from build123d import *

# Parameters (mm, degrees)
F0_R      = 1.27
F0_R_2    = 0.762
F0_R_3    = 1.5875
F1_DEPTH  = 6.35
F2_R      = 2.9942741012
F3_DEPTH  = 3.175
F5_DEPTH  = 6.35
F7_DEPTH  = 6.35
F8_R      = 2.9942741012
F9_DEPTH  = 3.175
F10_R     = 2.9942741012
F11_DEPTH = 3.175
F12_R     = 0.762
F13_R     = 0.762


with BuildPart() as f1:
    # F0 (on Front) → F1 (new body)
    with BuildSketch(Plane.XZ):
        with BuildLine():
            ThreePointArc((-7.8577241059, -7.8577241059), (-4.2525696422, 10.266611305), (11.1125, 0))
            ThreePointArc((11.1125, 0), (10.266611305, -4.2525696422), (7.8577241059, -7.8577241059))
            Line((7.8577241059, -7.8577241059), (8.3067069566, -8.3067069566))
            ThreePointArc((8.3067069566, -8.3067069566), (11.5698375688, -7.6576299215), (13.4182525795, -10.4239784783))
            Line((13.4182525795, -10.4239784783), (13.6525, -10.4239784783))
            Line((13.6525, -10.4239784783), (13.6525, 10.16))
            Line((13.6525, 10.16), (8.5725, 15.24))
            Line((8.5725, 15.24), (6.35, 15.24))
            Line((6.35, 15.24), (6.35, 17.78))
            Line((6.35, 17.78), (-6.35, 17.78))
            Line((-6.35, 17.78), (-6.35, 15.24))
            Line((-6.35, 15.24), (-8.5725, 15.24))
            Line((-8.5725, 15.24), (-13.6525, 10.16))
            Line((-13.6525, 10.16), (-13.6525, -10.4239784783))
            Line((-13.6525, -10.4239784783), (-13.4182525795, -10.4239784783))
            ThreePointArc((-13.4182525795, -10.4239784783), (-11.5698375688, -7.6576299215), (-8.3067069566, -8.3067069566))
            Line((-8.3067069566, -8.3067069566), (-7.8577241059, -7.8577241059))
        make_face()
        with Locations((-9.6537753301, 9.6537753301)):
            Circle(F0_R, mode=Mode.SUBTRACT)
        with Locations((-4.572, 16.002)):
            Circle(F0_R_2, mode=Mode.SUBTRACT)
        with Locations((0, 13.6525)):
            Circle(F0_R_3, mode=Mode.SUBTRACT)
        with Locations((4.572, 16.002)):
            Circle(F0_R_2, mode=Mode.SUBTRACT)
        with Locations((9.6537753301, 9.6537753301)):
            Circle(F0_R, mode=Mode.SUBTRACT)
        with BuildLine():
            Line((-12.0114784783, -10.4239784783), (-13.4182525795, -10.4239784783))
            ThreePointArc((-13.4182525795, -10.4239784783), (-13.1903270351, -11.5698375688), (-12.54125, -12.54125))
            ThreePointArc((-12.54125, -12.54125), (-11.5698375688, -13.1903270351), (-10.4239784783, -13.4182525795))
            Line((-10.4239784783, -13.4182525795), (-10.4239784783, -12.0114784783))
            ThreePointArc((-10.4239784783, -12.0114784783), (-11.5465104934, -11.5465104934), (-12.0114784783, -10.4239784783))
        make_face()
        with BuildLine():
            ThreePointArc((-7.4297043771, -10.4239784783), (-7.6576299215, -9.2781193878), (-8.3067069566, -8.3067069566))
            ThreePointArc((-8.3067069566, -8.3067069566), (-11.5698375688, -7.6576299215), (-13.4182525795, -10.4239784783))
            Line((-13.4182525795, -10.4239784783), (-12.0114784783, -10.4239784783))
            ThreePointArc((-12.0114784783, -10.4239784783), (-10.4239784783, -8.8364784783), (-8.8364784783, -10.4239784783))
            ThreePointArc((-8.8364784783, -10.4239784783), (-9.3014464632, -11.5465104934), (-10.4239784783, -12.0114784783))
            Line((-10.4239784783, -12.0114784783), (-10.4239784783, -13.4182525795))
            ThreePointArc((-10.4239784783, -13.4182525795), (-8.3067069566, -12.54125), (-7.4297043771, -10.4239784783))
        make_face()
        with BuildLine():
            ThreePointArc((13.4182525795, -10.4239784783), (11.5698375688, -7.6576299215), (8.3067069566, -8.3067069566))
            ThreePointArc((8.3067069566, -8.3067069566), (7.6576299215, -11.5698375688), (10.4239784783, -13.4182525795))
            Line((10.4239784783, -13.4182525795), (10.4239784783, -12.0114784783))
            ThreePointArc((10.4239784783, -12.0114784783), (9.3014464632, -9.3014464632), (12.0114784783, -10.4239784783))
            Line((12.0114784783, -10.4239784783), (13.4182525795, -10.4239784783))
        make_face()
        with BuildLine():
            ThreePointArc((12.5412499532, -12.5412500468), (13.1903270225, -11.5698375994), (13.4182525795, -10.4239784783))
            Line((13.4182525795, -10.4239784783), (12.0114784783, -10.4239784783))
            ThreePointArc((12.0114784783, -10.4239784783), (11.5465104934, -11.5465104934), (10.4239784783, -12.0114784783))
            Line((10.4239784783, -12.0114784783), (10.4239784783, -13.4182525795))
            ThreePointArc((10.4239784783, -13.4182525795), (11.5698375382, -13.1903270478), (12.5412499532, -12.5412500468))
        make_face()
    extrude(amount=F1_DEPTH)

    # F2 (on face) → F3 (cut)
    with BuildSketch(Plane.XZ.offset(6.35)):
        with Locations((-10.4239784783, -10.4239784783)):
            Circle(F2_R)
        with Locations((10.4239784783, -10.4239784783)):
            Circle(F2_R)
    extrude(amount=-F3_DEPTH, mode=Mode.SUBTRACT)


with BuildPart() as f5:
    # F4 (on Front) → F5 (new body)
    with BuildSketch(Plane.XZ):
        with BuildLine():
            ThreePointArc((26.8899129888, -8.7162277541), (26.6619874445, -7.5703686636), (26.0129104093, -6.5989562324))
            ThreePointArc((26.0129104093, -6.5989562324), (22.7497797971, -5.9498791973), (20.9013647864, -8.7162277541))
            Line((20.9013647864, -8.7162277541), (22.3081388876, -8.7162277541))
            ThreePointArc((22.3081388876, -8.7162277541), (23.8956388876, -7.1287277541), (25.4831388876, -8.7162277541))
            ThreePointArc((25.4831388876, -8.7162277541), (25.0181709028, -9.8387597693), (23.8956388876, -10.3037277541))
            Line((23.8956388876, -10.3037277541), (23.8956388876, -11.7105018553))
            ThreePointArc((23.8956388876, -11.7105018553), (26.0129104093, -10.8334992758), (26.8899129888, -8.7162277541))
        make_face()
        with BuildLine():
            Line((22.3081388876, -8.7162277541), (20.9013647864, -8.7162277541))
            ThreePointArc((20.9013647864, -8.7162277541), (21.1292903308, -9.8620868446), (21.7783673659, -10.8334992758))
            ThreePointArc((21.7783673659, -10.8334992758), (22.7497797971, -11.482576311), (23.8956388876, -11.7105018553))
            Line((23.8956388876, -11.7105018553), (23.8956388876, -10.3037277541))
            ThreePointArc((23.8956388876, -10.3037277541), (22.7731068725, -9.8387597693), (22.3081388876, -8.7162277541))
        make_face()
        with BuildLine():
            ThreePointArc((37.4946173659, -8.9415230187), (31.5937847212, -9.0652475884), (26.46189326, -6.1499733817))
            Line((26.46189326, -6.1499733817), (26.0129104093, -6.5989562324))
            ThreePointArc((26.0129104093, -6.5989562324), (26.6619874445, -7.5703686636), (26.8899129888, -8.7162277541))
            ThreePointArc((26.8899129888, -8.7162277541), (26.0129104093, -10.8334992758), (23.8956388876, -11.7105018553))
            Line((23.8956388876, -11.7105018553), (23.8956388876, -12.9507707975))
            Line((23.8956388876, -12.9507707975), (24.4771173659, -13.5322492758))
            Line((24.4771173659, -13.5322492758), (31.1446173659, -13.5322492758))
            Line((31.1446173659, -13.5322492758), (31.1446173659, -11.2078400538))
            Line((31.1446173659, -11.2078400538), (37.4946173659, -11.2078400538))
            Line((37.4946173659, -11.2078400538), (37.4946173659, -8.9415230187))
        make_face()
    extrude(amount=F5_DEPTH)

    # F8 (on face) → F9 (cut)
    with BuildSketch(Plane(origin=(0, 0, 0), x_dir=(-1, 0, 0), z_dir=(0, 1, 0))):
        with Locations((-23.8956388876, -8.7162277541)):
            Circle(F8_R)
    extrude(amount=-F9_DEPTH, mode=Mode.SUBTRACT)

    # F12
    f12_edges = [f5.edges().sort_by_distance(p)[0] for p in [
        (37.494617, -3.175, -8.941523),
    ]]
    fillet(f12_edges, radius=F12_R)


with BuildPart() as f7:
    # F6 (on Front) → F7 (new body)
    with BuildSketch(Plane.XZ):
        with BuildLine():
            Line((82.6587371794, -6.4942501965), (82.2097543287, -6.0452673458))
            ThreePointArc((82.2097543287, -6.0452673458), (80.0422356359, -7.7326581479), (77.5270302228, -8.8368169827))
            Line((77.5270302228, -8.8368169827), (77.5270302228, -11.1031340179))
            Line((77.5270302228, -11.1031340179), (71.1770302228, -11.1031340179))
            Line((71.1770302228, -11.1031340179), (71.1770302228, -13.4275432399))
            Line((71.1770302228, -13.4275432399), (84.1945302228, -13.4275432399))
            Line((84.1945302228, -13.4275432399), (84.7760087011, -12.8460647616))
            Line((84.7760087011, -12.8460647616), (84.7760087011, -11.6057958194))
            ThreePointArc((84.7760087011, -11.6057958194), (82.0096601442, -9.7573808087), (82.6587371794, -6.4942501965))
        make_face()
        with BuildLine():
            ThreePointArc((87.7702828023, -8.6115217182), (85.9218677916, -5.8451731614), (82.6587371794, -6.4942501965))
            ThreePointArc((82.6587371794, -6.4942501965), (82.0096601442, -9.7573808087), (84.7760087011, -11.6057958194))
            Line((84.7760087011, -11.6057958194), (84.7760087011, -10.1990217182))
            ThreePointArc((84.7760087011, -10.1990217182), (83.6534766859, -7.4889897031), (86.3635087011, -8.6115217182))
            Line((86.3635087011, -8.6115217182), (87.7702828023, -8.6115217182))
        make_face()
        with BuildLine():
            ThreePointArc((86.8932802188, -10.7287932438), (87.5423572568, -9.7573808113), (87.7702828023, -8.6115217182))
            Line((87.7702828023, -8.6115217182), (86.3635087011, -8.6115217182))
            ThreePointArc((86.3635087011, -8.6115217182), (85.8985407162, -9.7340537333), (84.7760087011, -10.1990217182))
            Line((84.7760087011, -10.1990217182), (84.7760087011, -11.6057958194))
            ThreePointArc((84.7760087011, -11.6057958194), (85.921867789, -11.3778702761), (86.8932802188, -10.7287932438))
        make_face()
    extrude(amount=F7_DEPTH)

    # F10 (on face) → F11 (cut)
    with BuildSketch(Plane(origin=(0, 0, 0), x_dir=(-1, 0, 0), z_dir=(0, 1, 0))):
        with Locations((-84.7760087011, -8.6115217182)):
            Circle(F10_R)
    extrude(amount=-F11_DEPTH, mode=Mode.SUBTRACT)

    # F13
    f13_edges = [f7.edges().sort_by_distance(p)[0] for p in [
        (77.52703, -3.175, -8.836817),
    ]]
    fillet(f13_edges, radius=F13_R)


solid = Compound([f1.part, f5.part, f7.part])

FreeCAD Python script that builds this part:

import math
import FreeCAD as App
import Part
import Sketcher

V = App.Vector
Q = App.Units.Quantity


def edges_at(feature, points):
    """Names of the edges that pass closest to the given points."""
    edges = feature.Shape.Edges
    near = lambda p: min(range(len(edges)), key=lambda i: edges[i].distToShape(Part.Vertex(*p))[0])
    return sorted({f"Edge{near(p) + 1}" for p in points})

doc = App.newDocument("Part")
body = doc.addObject("PartDesign::Body", "Body")

sketch1 = doc.addObject("Sketcher::SketchObject", "Sketch")
body.addObject(sketch1)
sketch1.AttachmentSupport = (doc.XZ_Plane, [""])
sketch1.MapMode = "FlatFace"
sketch1.addGeometry([
    Part.LineSegment(V(-13.6525, -10.423978, 0), V(-13.418253, -10.423978, 0)),
    Part.ArcOfCircle(Part.Circle(V(-10.423978, -10.423978, 0), V(0, 0, 1), 2.994274), math.radians(180), math.radians(225)),
    Part.ArcOfCircle(Part.Circle(V(-10.423978, -10.423978, 0), V(0, 0, 1), 2.994274), math.radians(-135), math.radians(-90)),
    Part.ArcOfCircle(Part.Circle(V(-10.423978, -10.423978, 0), V(0, 0, 1), 2.994274), math.radians(-90), math.radians(0)),
    Part.ArcOfCircle(Part.Circle(V(-10.423978, -10.423978, 0), V(0, 0, 1), 2.994274), math.radians(0), math.radians(45)),
    Part.LineSegment(V(-8.306707, -8.306707, 0), V(-7.857724, -7.857724, 0)),
    Part.ArcOfCircle(Part.Circle(V(0, 0, 0), V(0, 0, 1), 11.1125), math.radians(0), math.radians(225)),
    Part.ArcOfCircle(Part.Circle(V(0, 0, 0), V(0, 0, 1), 11.1125), math.radians(-45), math.radians(0)),
    Part.LineSegment(V(7.857724, -7.857724, 0), V(8.306707, -8.306707, 0)),
    Part.ArcOfCircle(Part.Circle(V(10.423978, -10.423978, 0), V(0, 0, 1), 2.994274), math.radians(135), math.radians(270)),
    Part.ArcOfCircle(Part.Circle(V(10.423978, -10.423978, 0), V(0, 0, 1), 2.994274), math.radians(-90), math.radians(-45.000001)),
    Part.ArcOfCircle(Part.Circle(V(10.423978, -10.423978, 0), V(0, 0, 1), 2.994274), math.radians(-45.000001), math.radians(0)),
    Part.LineSegment(V(13.418253, -10.423978, 0), V(13.6525, -10.423978, 0)),
    Part.LineSegment(V(13.6525, -10.423978, 0), V(13.6525, 10.16, 0)),
    Part.LineSegment(V(13.6525, 10.16, 0), V(8.5725, 15.24, 0)),
    Part.LineSegment(V(8.5725, 15.24, 0), V(6.35, 15.24, 0)),
    Part.LineSegment(V(6.35, 15.24, 0), V(6.35, 17.78, 0)),
    Part.LineSegment(V(6.35, 17.78, 0), V(-6.35, 17.78, 0)),
    Part.LineSegment(V(-6.35, 17.78, 0), V(-6.35, 15.24, 0)),
    Part.LineSegment(V(-6.35, 15.24, 0), V(-8.5725, 15.24, 0)),
    Part.LineSegment(V(-8.5725, 15.24, 0), V(-13.6525, 10.16, 0)),
    Part.LineSegment(V(-13.6525, 10.16, 0), V(-13.6525, -10.423978, 0)),
    Part.ArcOfCircle(Part.Circle(V(-10.423978, -10.423978, 0), V(0, 0, 1), 1.5875), math.radians(180), math.radians(270)),
    Part.ArcOfCircle(Part.Circle(V(-10.423978, -10.423978, 0), V(0, 0, 1), 1.5875), math.radians(0), math.radians(180)),
    Part.ArcOfCircle(Part.Circle(V(-10.423978, -10.423978, 0), V(0, 0, 1), 1.5875), math.radians(-90), math.radians(0)),
    Part.ArcOfCircle(Part.Circle(V(10.423978, -10.423978, 0), V(0, 0, 1), 1.5875), math.radians(0), math.radians(270)),
    Part.ArcOfCircle(Part.Circle(V(10.423978, -10.423978, 0), V(0, 0, 1), 1.5875), math.radians(-90), math.radians(0)),
    Part.Circle(V(-9.653775, 9.653775, 0), V(0, 0, 1), 1.27),
    Part.Circle(V(-4.572, 16.002, 0), V(0, 0, 1), 0.762),
    Part.Circle(V(0, 13.6525, 0), V(0, 0, 1), 1.5875),
    Part.Circle(V(4.572, 16.002, 0), V(0, 0, 1), 0.762),
    Part.Circle(V(9.653775, 9.653775, 0), V(0, 0, 1), 1.27),
], False)
sketch1.addConstraint([
    Sketcher.Constraint("Coincident", 0, 2, 1, 1),
    Sketcher.Constraint("Tangent", 1, 2, 2, 1),
    Sketcher.Constraint("Tangent", 2, 2, 3, 1),
    Sketcher.Constraint("Tangent", 3, 2, 4, 1),
    Sketcher.Constraint("Coincident", 4, 2, 5, 1),
    Sketcher.Constraint("Coincident", 5, 2, 6, 2),
    Sketcher.Constraint("Tangent", 6, 1, 7, 2),
    Sketcher.Constraint("Coincident", 7, 1, 8, 1),
    Sketcher.Constraint("Coincident", 8, 2, 9, 1),
    Sketcher.Constraint("Tangent", 9, 2, 10, 1),
    Sketcher.Constraint("Tangent", 10, 2, 11, 1),
    Sketcher.Constraint("Coincident", 11, 2, 12, 1),
    Sketcher.Constraint("Coincident", 12, 2, 13, 1),
    Sketcher.Constraint("Coincident", 13, 2, 14, 1),
    Sketcher.Constraint("Coincident", 14, 2, 15, 1),
    Sketcher.Constraint("Coincident", 15, 2, 16, 1),
    Sketcher.Constraint("Coincident", 16, 2, 17, 1),
    Sketcher.Constraint("Coincident", 17, 2, 18, 1),
    Sketcher.Constraint("Coincident", 18, 2, 19, 1),
    Sketcher.Constraint("Coincident", 19, 2, 20, 1),
    Sketcher.Constraint("Coincident", 20, 2, 21, 1),
    Sketcher.Constraint("Coincident", 21, 2, 0, 1),
    Sketcher.Constraint("Tangent", 22, 1, 23, 2),
    Sketcher.Constraint("Tangent", 23, 1, 24, 2),
    Sketcher.Constraint("Tangent", 24, 1, 22, 2),
    Sketcher.Constraint("Tangent", 25, 1, 26, 2),
    Sketcher.Constraint("Coincident", 26, 1, 25, 2),
    Sketcher.Constraint("Horizontal", 0),
    Sketcher.Constraint("Horizontal", 12),
    Sketcher.Constraint("Vertical", 13),
    Sketcher.Constraint("Horizontal", 15),
    Sketcher.Constraint("Vertical", 16),
    Sketcher.Constraint("Horizontal", 17),
    Sketcher.Constraint("Vertical", 18),
    Sketcher.Constraint("Horizontal", 19),
    Sketcher.Constraint("Vertical", 21),
    Sketcher.Constraint("Coincident", 6, 3, -1, 1),
    Sketcher.Constraint("Coincident", 3, 3, 1, 3),
    Sketcher.Constraint("Coincident", 11, 3, 9, 3),
    Sketcher.Constraint("Coincident", 22, 3, 1, 3),
    Sketcher.Constraint("Coincident", 25, 3, 9, 3),
    Sketcher.Constraint("Equal", 3, 4),
    Sketcher.Constraint("Equal", 6, 7),
    Sketcher.Constraint("Equal", 4, 9),
    Sketcher.Constraint("Equal", 24, 25),
    Sketcher.Constraint("Equal", 26, 29),
    Sketcher.Constraint("Equal", 28, 30),
    Sketcher.Constraint("Equal", 27, 31),
    Sketcher.Constraint("Symmetric", 1, 3, 9, 3, -2),
    Sketcher.Constraint("Symmetric", 28, 3, 30, 3, -2),
    Sketcher.Constraint("Symmetric", 27, 3, 31, 3, -2),
    Sketcher.Constraint("Symmetric", 15, 2, 18, 2, -2),
    Sketcher.Constraint("Symmetric", 13, 2, 20, 2, -2),
    Sketcher.Constraint("PointOnObject", 29, 3, -2),
    Sketcher.Constraint("PointOnObject", 6, 1, -1),
    Sketcher.Constraint("Perpendicular", 5, 8),
    Sketcher.Constraint("Parallel", 8, 14),
    Sketcher.Constraint("Perpendicular", 14, 20),
    Sketcher.Constraint("Horizontal", 26, 3, 0, 2),
    Sketcher.Constraint("Horizontal", 0, 2, 3, 2),
    Sketcher.Constraint("Horizontal", 5, 2, 7, 1),
    Sketcher.Constraint("Horizontal", 4, 2, 8, 2),
    Sketcher.Constraint("Horizontal", 1, 2, 10, 2),
    Sketcher.Constraint("Horizontal", 3, 2, 11, 2),
    Sketcher.Constraint("Horizontal", 21, 2, 22, 1),
    Sketcher.Constraint("Horizontal", 22, 1, 23, 1),
    Sketcher.Constraint("Horizontal", 23, 1, 25, 1),
    Sketcher.Constraint("Vertical", 24, 3, 2, 2),
    Sketcher.Constraint("Vertical", 26, 3, 9, 2),
    Sketcher.Constraint("Vertical", 2, 2, 24, 1),
    Sketcher.Constraint("Vertical", 9, 2, 26, 1),
    Sketcher.Constraint("Diameter", 27, Q("0.1 in")),
    Sketcher.Constraint("Diameter", 28, Q("0.06 in")),
    Sketcher.Constraint("Diameter", 29, Q("0.125 in")),
    Sketcher.Constraint("DistanceX", 17, 2, 17, 1, Q("0.5 in")),
    Sketcher.Constraint("DistanceY", 16, 1, 16, 2, Q("0.1 in")),
    Sketcher.Constraint("Radius", 6, Q("0.4375 in")),
    Sketcher.Constraint("DistanceY", -1, 1, 13, 2, Q("0.4 in")),
    Sketcher.Constraint("DistanceY", -1, 1, 14, 2, Q("0.6 in")),
    Sketcher.Constraint("DistanceX", 6, 1, 13, 2, Q("0.1 in")),
    Sketcher.Constraint("DistanceX", 28, 3, -1, 1, Q("0.18 in")),
    Sketcher.Constraint("DistanceY", -1, 1, 28, 3, Q("0.63 in")),
    Sketcher.Constraint("DistanceY", 29, 3, 14, 2, Q("0.0625 in")),
    Sketcher.Constraint("Radius", 1, 2.994274),
    Sketcher.Constraint("DistanceY", 13, 1, 13, 2, 20.583978),
    Sketcher.Constraint("DistanceX", 0, 1, 0, 2, 0.234247),
    Sketcher.Constraint("DistanceX", 1, 2, -1, 1, 12.54125),
    Sketcher.Constraint("DistanceY", 3, 2, 4, 2, 2.117272),
    Sketcher.Constraint("DistanceX", 27, 3, -1, 1, 9.653775),
    Sketcher.Constraint("DistanceY", -1, 1, 27, 3, 9.653775),
])
pad1 = doc.addObject("PartDesign::Pad", "Pad")
body.addObject(pad1)
pad1.Profile = sketch1
pad1.Length = Q("0.25 in")

sketch2 = doc.addObject("Sketcher::SketchObject", "Sketch001")
body.addObject(sketch2)
sketch2.AttachmentSupport = (doc.XZ_Plane, [""])
sketch2.MapMode = "FlatFace"
sketch2.AttachmentOffset = App.Placement(V(0, 0, 0.25 * 25.4), App.Rotation())
sketch2.addGeometry([
    Part.Circle(V(-10.423978, -10.423978, 0), V(0, 0, 1), 2.994274),
    Part.Circle(V(10.423978, -10.423978, 0), V(0, 0, 1), 2.994274),
], False)
sketch2.addConstraint([
    Sketcher.Constraint("Equal", 0, 1),
    Sketcher.Constraint("Symmetric", 0, 3, 1, 3, -2),
    Sketcher.Constraint("Diameter", 0, 5.988548),
    Sketcher.Constraint("DistanceX", 0, 3, -1, 1, 10.423978),
    Sketcher.Constraint("DistanceY", 0, 3, -1, 1, 10.423978),
])
pocket1 = doc.addObject("PartDesign::Pocket", "Pocket")
body.addObject(pocket1)
pocket1.Profile = sketch2
pocket1.Length = Q("0.125 in")
body2 = doc.addObject("PartDesign::Body", "Body001")

sketch3 = doc.addObject("Sketcher::SketchObject", "Sketch002")
body2.addObject(sketch3)
sketch3.AttachmentSupport = (doc.getObject("XZ_Plane001"), [""])
sketch3.MapMode = "FlatFace"
sketch3.addGeometry([
    Part.ArcOfCircle(Part.Circle(V(23.895639, -8.716228, 0), V(0, 0, 1), 2.994274), math.radians(45), math.radians(180)),
    Part.ArcOfCircle(Part.Circle(V(23.895639, -8.716228, 0), V(0, 0, 1), 2.994274), math.radians(180), math.radians(225)),
    Part.ArcOfCircle(Part.Circle(V(23.895639, -8.716228, 0), V(0, 0, 1), 2.994274), math.radians(-135), math.radians(-90)),
    Part.LineSegment(V(23.895639, -11.710502, 0), V(23.895639, -12.950771, 0)),
    Part.LineSegment(V(23.895639, -12.950771, 0), V(24.477117, -13.532249, 0)),
    Part.LineSegment(V(24.477117, -13.532249, 0), V(31.144617, -13.532249, 0)),
    Part.LineSegment(V(31.144617, -13.532249, 0), V(31.144617, -11.20784, 0)),
    Part.LineSegment(V(31.144617, -11.20784, 0), V(37.494617, -11.20784, 0)),
    Part.LineSegment(V(37.494617, -11.20784, 0), V(37.494617, -8.941523, 0)),
    Part.ArcOfCircle(Part.Circle(V(34.319617, 1.707751, 0), V(0, 0, 1), 11.1125), math.radians(-135), math.radians(-73.39845)),
    Part.LineSegment(V(26.461893, -6.149973, 0), V(26.01291, -6.598956, 0)),
    Part.ArcOfCircle(Part.Circle(V(23.895639, -8.716228, 0), V(0, 0, 1), 1.5875), math.radians(0), math.radians(180)),
    Part.ArcOfCircle(Part.Circle(V(23.895639, -8.716228, 0), V(0, 0, 1), 1.5875), math.radians(-90), math.radians(0)),
    Part.ArcOfCircle(Part.Circle(V(23.895639, -8.716228, 0), V(0, 0, 1), 1.5875), math.radians(180), math.radians(270)),
], False)
sketch3.addConstraint([
    Sketcher.Constraint("Tangent", 0, 2, 1, 1),
    Sketcher.Constraint("Tangent", 1, 2, 2, 1),
    Sketcher.Constraint("Coincident", 2, 2, 3, 1),
    Sketcher.Constraint("Coincident", 3, 2, 4, 1),
    Sketcher.Constraint("Coincident", 4, 2, 5, 1),
    Sketcher.Constraint("Coincident", 5, 2, 6, 1),
    Sketcher.Constraint("Coincident", 6, 2, 7, 1),
    Sketcher.Constraint("Coincident", 7, 2, 8, 1),
    Sketcher.Constraint("Coincident", 8, 2, 9, 2),
    Sketcher.Constraint("Coincident", 9, 1, 10, 1),
    Sketcher.Constraint("Coincident", 10, 2, 0, 1),
    Sketcher.Constraint("Tangent", 11, 1, 12, 2),
    Sketcher.Constraint("Tangent", 12, 1, 13, 2),
    Sketcher.Constraint("Tangent", 13, 1, 11, 2),
    Sketcher.Constraint("Vertical", 3),
    Sketcher.Constraint("Horizontal", 5),
    Sketcher.Constraint("Vertical", 6),
    Sketcher.Constraint("Horizontal", 7),
    Sketcher.Constraint("Vertical", 8),
    Sketcher.Constraint("Coincident", 2, 3, 0, 3),
    Sketcher.Constraint("Coincident", 11, 3, 0, 3),
    Sketcher.Constraint("Perpendicular", 4, 10),
    Sketcher.Constraint("Horizontal", 13, 3, 0, 2),
    Sketcher.Constraint("Horizontal", 0, 2, 11, 1),
    Sketcher.Constraint("Horizontal", 11, 1, 13, 1),
    Sketcher.Constraint("Vertical", 13, 3, 2, 2),
    Sketcher.Constraint("Vertical", 3, 2, 12, 1),
    Sketcher.Constraint("Angle", 4, Q("-45 deg")),
    Sketcher.Constraint("Radius", 9, Q("0.4375 in")),
    Sketcher.Constraint("Radius", 11, Q("0.0625 in")),
    Sketcher.Constraint("DistanceX", 7, 1, 7, 2, Q("0.25 in")),
    Sketcher.Constraint("DistanceX", 5, 1, 5, 2, Q("0.2625 in")),
    Sketcher.Constraint("DistanceX", 9, 3, 7, 2, Q("0.125 in")),
    Sketcher.Constraint("Radius", 0, 2.994274),
    Sketcher.Constraint("DistanceY", 3, 2, 3, 1, 1.240269),
    Sketcher.Constraint("DistanceY", 6, 1, 6, 2, 2.324409),
    Sketcher.Constraint("DistanceY", 1, 2, -1, 1, 10.833499),
    Sketcher.Constraint("DistanceY", 2, 2, -1, 1, 11.710502),
    Sketcher.Constraint("DistanceY", 8, 1, 8, 2, 2.266317),
    Sketcher.Constraint("DistanceX", -1, 1, 0, 3, 23.895639),
    Sketcher.Constraint("DistanceY", -1, 1, 9, 3, 1.707751),
    Sketcher.Constraint("DistanceX", -1, 1, 10, 2, 26.01291),
])
pad2 = doc.addObject("PartDesign::Pad", "Pad001")
body2.addObject(pad2)
pad2.Profile = sketch3
pad2.Length = Q("0.25 in")

sketch4 = doc.addObject("Sketcher::SketchObject", "Sketch003")
body2.addObject(sketch4)
sketch4.AttachmentSupport = (doc.getObject("XZ_Plane001"), [""])
sketch4.MapMode = "FlatFace"
sketch4.addGeometry(Part.Circle(V(23.895639, -8.716228, 0), V(0, 0, 1), 2.994274), False)
sketch4.addConstraint([
    Sketcher.Constraint("Diameter", 0, 5.988548),
    Sketcher.Constraint("DistanceX", -1, 1, 0, 3, 23.895639),
    Sketcher.Constraint("DistanceY", 0, 3, -1, 1, 8.716228),
])
pocket2 = doc.addObject("PartDesign::Pocket", "Pocket001")
body2.addObject(pocket2)
pocket2.Profile = sketch4
pocket2.Length = Q("0.125 in")
pocket2.Reversed = True
doc.recompute()

fillet = doc.addObject("PartDesign::Fillet", "Fillet")
body2.addObject(fillet)
fillet.Base = (pocket2, edges_at(pocket2, [(37.495, -3.175, -8.942)]))
fillet.Radius = Q("0.03 in")
body3 = doc.addObject("PartDesign::Body", "Body002")

sketch5 = doc.addObject("Sketcher::SketchObject", "Sketch004")
body3.addObject(sketch5)
sketch5.AttachmentSupport = (doc.getObject("XZ_Plane002"), [""])
sketch5.MapMode = "FlatFace"
sketch5.addGeometry([
    Part.LineSegment(V(82.658737, -6.49425, 0), V(82.209754, -6.045267, 0)),
    Part.ArcOfCircle(Part.Circle(V(74.35203, 1.812457, 0), V(0, 0, 1), 11.1125), math.radians(-73.39845), math.radians(-45)),
    Part.LineSegment(V(77.52703, -8.836817, 0), V(77.52703, -11.103134, 0)),
    Part.LineSegment(V(77.52703, -11.103134, 0), V(71.17703, -11.103134, 0)),
    Part.LineSegment(V(71.17703, -11.103134, 0), V(71.17703, -13.427543, 0)),
    Part.LineSegment(V(71.17703, -13.427543, 0), V(84.19453, -13.427543, 0)),
    Part.LineSegment(V(84.19453, -13.427543, 0), V(84.776009, -12.846065, 0)),
    Part.LineSegment(V(84.776009, -12.846065, 0), V(84.776009, -11.605796, 0)),
    Part.ArcOfCircle(Part.Circle(V(84.776009, -8.611522, 0), V(0, 0, 1), 2.994274), math.radians(-90), math.radians(-45)),
    Part.ArcOfCircle(Part.Circle(V(84.776009, -8.611522, 0), V(0, 0, 1), 2.994274), math.radians(-45), math.radians(0)),
    Part.ArcOfCircle(Part.Circle(V(84.776009, -8.611522, 0), V(0, 0, 1), 2.994274), math.radians(0), math.radians(135)),
    Part.ArcOfCircle(Part.Circle(V(84.776009, -8.611522, 0), V(0, 0, 1), 1.5875), math.radians(0), math.radians(270)),
    Part.ArcOfCircle(Part.Circle(V(84.776009, -8.611522, 0), V(0, 0, 1), 1.5875), math.radians(-90), math.radians(0)),
], False)
sketch5.addConstraint([
    Sketcher.Constraint("Coincident", 0, 2, 1, 2),
    Sketcher.Constraint("Coincident", 1, 1, 2, 1),
    Sketcher.Constraint("Coincident", 2, 2, 3, 1),
    Sketcher.Constraint("Coincident", 3, 2, 4, 1),
    Sketcher.Constraint("Coincident", 4, 2, 5, 1),
    Sketcher.Constraint("Coincident", 5, 2, 6, 1),
    Sketcher.Constraint("Coincident", 6, 2, 7, 1),
    Sketcher.Constraint("Coincident", 7, 2, 8, 1),
    Sketcher.Constraint("Tangent", 8, 2, 9, 1),
    Sketcher.Constraint("Tangent", 9, 2, 10, 1),
    Sketcher.Constraint("Coincident", 10, 2, 0, 1),
    Sketcher.Constraint("Tangent", 11, 1, 12, 2),
    Sketcher.Constraint("Coincident", 12, 1, 11, 2),
    Sketcher.Constraint("Vertical", 2),
    Sketcher.Constraint("Horizontal", 3),
    Sketcher.Constraint("Vertical", 4),
    Sketcher.Constraint("Horizontal", 5),
    Sketcher.Constraint("Vertical", 7),
    Sketcher.Constraint("Coincident", 10, 3, 8, 3),
    Sketcher.Constraint("Coincident", 11, 3, 8, 3),
    Sketcher.Constraint("Perpendicular", 0, 6),
    Sketcher.Constraint("Horizontal", 12, 3, 9, 2),
    Sketcher.Constraint("Horizontal", 9, 2, 11, 1),
    Sketcher.Constraint("Vertical", 12, 3, 6, 2),
    Sketcher.Constraint("Vertical", 7, 2, 12, 1),
    Sketcher.Constraint("Angle", 0, Q("135 deg")),
    Sketcher.Constraint("Radius", 1, Q("0.4375 in")),
    Sketcher.Constraint("Radius", 11, Q("0.0625 in")),
    Sketcher.Constraint("DistanceX", 3, 2, 3, 1, Q("0.25 in")),
    Sketcher.Constraint("DistanceX", 5, 1, 5, 2, Q("0.5125 in")),
    Sketcher.Constraint("DistanceX", 3, 2, 1, 3, Q("0.125 in")),
    Sketcher.Constraint("Radius", 8, 2.994274),
    Sketcher.Constraint("DistanceY", 4, 2, 4, 1, 2.324409),
    Sketcher.Constraint("DistanceY", 7, 1, 7, 2, 1.240269),
    Sketcher.Constraint("DistanceY", 2, 2, 2, 1, 2.266317),
    Sketcher.Constraint("DistanceX", -1, 1, 1, 3, 74.35203),
    Sketcher.Constraint("DistanceX", -1, 1, 8, 3, 84.776009),
    Sketcher.Constraint("DistanceY", 8, 3, -1, 1, 8.611522),
    Sketcher.Constraint("DistanceX", -1, 1, 8, 2, 86.89328),
    Sketcher.Constraint("DistanceY", 10, 2, -1, 1, 6.49425),
])
pad3 = doc.addObject("PartDesign::Pad", "Pad002")
body3.addObject(pad3)
pad3.Profile = sketch5
pad3.Length = Q("0.25 in")

sketch6 = doc.addObject("Sketcher::SketchObject", "Sketch005")
body3.addObject(sketch6)
sketch6.AttachmentSupport = (doc.getObject("XZ_Plane002"), [""])
sketch6.MapMode = "FlatFace"
sketch6.addGeometry(Part.Circle(V(84.776009, -8.611522, 0), V(0, 0, 1), 2.994274), False)
sketch6.addConstraint([
    Sketcher.Constraint("Diameter", 0, 5.988548),
    Sketcher.Constraint("DistanceX", -1, 1, 0, 3, 84.776009),
    Sketcher.Constraint("DistanceY", 0, 3, -1, 1, 8.611522),
])
pocket3 = doc.addObject("PartDesign::Pocket", "Pocket002")
body3.addObject(pocket3)
pocket3.Profile = sketch6
pocket3.Length = Q("0.125 in")
pocket3.Reversed = True
doc.recompute()

fillet2 = doc.addObject("PartDesign::Fillet", "Fillet001")
body3.addObject(fillet2)
fillet2.Base = (pocket3, edges_at(pocket3, [(77.527, -3.175, -8.837)]))
fillet2.Radius = Q("0.03 in")

doc.recompute()
